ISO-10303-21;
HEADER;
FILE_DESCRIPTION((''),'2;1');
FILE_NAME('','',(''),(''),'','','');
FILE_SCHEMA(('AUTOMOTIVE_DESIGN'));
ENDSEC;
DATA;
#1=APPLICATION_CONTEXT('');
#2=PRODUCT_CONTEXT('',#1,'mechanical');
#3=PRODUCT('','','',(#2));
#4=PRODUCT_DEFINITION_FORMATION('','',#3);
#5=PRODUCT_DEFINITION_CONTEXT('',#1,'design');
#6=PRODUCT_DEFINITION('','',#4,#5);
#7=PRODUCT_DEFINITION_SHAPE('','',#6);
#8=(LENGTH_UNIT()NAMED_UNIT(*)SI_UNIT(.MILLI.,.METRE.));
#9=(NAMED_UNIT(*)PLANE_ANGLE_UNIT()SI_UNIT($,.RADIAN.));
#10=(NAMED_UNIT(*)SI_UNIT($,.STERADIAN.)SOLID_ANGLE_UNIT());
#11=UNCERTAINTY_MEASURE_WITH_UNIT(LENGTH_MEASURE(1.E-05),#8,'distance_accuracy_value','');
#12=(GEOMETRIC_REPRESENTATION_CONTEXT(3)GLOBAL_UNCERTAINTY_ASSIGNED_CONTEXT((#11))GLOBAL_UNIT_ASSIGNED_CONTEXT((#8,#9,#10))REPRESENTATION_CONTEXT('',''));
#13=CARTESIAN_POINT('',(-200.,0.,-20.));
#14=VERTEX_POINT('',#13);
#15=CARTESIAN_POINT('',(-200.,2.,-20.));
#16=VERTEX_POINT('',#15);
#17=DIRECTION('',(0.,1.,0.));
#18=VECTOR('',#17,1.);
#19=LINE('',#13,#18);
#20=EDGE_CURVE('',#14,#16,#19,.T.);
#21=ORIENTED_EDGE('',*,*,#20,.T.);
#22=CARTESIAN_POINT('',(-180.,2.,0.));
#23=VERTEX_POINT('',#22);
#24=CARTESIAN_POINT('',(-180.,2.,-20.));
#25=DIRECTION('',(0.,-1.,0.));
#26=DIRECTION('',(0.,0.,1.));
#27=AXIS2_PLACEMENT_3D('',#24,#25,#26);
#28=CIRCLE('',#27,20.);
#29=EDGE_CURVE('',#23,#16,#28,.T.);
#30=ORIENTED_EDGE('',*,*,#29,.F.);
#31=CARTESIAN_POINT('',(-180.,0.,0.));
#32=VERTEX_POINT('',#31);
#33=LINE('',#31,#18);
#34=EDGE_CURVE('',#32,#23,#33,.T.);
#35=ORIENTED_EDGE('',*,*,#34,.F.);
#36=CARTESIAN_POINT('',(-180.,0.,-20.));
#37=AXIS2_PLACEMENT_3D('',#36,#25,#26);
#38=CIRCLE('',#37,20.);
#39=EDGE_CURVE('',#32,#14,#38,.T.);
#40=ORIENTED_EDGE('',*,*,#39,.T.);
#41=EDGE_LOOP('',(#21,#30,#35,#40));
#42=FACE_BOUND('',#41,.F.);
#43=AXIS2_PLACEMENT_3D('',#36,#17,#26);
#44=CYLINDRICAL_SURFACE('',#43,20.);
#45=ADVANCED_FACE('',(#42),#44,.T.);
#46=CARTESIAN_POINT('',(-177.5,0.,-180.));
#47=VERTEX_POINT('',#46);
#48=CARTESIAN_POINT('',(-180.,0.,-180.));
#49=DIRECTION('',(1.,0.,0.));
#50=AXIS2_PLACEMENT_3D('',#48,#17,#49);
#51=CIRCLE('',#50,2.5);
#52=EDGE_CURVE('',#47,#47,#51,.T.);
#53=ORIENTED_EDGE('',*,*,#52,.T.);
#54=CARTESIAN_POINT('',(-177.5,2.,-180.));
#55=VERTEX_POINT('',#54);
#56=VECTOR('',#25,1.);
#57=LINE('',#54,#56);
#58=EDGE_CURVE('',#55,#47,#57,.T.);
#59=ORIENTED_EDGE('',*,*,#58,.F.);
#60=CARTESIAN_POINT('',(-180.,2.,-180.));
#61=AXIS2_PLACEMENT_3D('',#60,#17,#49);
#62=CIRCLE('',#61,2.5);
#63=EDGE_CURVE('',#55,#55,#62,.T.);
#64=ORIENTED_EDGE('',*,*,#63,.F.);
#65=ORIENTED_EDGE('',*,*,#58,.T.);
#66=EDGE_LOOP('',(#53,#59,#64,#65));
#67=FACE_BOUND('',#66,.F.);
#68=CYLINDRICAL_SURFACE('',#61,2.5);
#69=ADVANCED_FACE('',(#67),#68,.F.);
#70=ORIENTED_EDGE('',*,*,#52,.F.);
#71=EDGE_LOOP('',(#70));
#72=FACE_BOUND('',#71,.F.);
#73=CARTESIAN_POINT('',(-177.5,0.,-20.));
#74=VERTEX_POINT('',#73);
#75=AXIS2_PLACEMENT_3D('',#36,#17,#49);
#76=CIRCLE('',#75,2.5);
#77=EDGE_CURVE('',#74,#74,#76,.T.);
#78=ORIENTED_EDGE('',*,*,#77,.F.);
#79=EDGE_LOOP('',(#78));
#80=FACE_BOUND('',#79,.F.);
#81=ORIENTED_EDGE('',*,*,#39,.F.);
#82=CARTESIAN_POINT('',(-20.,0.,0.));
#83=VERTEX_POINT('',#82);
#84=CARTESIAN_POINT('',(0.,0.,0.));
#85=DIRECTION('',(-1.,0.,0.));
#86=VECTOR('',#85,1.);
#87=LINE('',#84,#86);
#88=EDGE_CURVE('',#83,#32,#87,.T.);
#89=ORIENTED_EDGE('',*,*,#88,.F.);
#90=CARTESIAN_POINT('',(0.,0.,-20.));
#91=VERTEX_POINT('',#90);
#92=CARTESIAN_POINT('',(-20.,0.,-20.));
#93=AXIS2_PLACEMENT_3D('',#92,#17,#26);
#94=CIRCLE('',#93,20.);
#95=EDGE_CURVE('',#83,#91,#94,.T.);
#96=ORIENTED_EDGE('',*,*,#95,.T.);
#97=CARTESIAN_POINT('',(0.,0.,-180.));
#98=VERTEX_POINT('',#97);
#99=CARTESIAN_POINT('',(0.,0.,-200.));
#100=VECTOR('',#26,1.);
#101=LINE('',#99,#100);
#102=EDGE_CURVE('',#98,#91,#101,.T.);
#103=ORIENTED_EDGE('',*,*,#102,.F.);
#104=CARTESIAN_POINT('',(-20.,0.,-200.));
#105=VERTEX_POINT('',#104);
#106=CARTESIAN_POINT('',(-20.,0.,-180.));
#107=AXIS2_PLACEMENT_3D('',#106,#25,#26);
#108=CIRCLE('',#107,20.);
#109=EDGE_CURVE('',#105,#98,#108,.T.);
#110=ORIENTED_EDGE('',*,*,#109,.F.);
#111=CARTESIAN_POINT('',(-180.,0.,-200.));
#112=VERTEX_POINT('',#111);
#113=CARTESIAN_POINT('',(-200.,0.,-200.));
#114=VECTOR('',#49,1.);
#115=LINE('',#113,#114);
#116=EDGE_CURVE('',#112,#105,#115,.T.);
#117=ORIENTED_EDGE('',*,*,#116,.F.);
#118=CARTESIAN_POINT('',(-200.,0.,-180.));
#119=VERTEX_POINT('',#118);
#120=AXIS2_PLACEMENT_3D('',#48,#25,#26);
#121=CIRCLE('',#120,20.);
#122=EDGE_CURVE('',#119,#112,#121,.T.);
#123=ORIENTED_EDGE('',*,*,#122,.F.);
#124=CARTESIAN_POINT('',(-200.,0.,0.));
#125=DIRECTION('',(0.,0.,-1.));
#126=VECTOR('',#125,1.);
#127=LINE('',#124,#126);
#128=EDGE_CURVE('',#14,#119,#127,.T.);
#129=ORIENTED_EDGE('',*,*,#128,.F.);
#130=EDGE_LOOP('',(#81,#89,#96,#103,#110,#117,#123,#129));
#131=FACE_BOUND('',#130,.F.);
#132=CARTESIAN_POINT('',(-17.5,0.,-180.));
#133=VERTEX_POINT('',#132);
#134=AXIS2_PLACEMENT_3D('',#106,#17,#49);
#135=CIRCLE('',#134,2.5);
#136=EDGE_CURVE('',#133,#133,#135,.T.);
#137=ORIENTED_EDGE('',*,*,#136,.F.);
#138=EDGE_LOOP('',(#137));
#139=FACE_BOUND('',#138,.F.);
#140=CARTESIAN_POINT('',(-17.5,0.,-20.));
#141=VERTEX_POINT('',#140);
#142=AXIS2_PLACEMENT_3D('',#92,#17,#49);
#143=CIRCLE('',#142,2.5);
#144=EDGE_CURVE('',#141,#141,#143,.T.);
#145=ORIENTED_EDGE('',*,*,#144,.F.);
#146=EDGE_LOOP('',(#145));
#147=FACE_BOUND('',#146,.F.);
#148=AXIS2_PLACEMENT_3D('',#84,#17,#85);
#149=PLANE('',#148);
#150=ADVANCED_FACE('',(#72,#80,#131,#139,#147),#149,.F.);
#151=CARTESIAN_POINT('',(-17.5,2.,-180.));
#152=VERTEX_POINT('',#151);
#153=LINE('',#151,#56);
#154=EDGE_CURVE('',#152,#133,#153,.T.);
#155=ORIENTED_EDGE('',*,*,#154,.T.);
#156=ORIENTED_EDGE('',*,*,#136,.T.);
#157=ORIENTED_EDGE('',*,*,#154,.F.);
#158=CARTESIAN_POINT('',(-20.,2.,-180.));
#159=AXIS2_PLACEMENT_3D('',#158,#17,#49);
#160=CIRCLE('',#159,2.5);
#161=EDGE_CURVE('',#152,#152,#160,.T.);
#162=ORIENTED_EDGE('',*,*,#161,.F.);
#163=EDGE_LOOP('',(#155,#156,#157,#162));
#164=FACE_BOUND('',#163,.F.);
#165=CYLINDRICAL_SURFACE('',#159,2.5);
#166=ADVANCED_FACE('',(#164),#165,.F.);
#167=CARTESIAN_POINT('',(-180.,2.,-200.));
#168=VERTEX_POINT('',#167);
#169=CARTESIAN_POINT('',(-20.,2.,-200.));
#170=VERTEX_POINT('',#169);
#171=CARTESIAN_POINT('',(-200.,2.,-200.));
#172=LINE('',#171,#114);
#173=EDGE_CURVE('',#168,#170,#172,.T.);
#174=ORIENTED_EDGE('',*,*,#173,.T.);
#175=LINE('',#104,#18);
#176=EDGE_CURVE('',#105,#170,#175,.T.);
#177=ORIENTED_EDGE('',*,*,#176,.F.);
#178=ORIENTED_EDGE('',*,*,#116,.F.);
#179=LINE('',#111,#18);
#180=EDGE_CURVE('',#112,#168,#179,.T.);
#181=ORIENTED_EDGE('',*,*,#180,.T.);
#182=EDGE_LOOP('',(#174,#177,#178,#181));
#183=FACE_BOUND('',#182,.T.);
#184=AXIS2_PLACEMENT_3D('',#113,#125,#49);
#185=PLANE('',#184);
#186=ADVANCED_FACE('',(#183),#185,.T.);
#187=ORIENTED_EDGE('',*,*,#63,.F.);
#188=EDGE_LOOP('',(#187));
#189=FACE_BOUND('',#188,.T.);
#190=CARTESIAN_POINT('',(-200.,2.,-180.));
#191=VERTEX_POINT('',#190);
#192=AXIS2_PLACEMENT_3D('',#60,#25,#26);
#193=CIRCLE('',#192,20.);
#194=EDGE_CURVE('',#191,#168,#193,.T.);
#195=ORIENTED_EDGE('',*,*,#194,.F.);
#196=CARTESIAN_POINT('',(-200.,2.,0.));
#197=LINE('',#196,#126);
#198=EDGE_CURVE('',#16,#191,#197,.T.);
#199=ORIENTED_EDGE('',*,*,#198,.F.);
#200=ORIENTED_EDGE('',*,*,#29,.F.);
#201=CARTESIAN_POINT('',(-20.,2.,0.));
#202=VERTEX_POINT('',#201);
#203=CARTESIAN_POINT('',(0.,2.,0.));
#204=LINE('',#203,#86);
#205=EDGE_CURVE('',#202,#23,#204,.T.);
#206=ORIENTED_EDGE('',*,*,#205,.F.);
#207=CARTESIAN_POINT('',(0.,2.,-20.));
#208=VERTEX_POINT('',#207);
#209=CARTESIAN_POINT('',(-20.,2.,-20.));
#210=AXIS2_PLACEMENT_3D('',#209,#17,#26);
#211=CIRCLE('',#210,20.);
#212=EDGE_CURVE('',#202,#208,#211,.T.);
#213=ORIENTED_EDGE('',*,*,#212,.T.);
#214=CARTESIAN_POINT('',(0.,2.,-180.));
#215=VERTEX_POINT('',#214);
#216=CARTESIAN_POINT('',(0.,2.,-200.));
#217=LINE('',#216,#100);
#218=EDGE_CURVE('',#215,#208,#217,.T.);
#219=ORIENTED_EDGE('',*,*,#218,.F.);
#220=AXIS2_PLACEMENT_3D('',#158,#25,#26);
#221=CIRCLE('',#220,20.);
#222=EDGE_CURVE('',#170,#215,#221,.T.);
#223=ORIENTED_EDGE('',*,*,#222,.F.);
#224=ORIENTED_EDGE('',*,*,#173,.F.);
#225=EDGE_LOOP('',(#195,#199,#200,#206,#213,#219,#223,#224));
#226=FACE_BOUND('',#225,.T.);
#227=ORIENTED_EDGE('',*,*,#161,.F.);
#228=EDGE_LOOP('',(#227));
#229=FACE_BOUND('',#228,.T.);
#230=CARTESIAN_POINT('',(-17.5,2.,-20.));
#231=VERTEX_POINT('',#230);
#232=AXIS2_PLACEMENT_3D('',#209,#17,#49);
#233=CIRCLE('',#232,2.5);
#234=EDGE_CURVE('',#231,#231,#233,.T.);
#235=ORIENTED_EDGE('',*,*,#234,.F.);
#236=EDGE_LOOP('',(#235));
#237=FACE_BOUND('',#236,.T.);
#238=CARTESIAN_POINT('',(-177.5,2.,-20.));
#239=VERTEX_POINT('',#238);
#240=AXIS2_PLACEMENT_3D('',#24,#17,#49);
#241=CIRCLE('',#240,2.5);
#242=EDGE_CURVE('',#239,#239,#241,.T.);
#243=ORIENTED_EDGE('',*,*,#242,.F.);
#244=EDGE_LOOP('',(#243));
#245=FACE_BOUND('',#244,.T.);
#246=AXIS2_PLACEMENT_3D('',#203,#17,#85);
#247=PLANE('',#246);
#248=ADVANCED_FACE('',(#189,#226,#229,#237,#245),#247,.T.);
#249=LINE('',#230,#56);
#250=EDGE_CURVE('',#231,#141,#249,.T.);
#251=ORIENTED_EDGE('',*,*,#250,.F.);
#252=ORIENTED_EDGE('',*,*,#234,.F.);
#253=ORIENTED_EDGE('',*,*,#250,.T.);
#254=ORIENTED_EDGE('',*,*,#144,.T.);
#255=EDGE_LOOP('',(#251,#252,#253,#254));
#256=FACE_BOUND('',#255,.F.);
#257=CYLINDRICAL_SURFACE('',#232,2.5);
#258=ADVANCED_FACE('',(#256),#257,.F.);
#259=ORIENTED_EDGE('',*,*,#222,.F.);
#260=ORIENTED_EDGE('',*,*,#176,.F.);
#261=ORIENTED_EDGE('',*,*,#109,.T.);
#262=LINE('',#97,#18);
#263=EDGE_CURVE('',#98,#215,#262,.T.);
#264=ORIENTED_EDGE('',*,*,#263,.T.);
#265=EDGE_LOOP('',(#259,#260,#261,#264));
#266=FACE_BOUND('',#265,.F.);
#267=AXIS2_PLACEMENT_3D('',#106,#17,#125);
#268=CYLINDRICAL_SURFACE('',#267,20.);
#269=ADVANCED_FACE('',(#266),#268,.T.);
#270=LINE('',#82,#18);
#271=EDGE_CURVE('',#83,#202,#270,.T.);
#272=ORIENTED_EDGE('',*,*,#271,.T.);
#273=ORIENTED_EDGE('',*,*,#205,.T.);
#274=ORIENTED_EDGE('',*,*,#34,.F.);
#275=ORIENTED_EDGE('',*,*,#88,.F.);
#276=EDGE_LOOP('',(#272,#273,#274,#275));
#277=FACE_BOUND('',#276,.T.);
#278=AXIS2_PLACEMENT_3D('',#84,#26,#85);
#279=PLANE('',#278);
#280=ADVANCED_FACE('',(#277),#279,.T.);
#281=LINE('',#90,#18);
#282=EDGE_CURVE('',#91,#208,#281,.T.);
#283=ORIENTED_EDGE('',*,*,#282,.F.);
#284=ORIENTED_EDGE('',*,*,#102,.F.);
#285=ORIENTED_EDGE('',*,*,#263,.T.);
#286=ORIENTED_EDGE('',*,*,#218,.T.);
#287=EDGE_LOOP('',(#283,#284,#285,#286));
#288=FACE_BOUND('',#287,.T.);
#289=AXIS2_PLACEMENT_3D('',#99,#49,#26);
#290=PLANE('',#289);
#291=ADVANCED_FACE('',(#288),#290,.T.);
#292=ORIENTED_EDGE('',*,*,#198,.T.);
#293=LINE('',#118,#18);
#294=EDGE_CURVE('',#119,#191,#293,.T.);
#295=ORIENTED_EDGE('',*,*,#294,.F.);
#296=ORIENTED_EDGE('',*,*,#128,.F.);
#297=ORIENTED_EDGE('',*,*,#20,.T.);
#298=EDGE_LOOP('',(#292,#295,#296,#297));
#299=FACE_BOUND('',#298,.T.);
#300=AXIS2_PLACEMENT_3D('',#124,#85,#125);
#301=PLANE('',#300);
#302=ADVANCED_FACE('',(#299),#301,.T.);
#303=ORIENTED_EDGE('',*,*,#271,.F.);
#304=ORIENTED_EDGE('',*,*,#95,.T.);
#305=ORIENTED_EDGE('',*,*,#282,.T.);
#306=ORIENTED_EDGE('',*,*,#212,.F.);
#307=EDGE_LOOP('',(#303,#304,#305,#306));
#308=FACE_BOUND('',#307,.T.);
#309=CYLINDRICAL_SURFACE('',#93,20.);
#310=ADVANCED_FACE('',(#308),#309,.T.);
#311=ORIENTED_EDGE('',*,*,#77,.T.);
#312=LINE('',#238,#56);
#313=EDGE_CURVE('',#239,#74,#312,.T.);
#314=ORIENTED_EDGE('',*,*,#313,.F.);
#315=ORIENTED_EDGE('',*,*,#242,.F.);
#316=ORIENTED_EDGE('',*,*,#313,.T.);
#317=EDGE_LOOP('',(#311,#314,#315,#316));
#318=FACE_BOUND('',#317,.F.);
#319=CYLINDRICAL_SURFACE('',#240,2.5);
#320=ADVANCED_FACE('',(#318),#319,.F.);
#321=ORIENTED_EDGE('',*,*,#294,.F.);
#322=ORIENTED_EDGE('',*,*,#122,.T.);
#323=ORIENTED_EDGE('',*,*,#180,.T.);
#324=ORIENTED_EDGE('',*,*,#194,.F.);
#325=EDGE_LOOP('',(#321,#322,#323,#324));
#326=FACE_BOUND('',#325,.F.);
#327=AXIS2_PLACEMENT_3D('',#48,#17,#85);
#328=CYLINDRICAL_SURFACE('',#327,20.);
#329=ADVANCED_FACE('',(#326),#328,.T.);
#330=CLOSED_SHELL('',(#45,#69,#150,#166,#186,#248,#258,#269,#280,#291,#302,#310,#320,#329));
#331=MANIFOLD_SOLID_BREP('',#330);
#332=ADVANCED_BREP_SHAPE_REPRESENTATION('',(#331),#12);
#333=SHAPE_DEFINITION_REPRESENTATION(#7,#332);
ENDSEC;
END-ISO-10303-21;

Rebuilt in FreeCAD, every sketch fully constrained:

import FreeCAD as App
import Part
import Sketcher


def edges_at(feature, points):
    """Names of the edges that pass closest to the given points."""
    edges = feature.Shape.Edges
    near = lambda p: min(range(len(edges)), key=lambda i: edges[i].distToShape(Part.Vertex(*p))[0])
    return sorted({f"Edge{near(p) + 1}" for p in points})


def add_polygon(sketch, points):
    """Adds a closed chain of lines whose ends are joined by coincident constraints."""
    first, n = sketch.GeometryCount, len(points)
    for a, b in zip(points, points[1:] + points[:1]):
        sketch.addGeometry(Part.LineSegment(App.Vector(*a, 0), App.Vector(*b, 0)), False)
    for i in range(n):
        sketch.addConstraint(Sketcher.Constraint("Coincident", first + i, 2, first + (i + 1) % n, 1))

doc = App.newDocument("Part")
body = doc.addObject("PartDesign::Body", "Body")

# Sketch on XZ plane
sketch1 = body.newObject("Sketcher::SketchObject", "Sketch")
sketch1.AttachmentSupport = (doc.getObject("XZ_Plane"), [""])
sketch1.MapMode = "FlatFace"
add_polygon(sketch1, [(-200, 0), (0, 0), (0, -200), (-200, -200)])  # lines 0-3
sketch1.addConstraint(Sketcher.Constraint("Horizontal", 0))
sketch1.addConstraint(Sketcher.Constraint("Vertical", 1))
sketch1.addConstraint(Sketcher.Constraint("Horizontal", 2))
sketch1.addConstraint(Sketcher.Constraint("Vertical", 3))
sketch1.addConstraint(Sketcher.Constraint("Coincident", 0, 2, -1, 1))
sketch1.addConstraint(Sketcher.Constraint("Equal", 2, 1))
sketch1.addConstraint(Sketcher.Constraint("DistanceX", 0, 1, 0, 2, 200.0))
pad1 = body.newObject("PartDesign::Pad", "Pad")
pad1.Profile = sketch1
pad1.Length = 2
pad1.Reversed = True
doc.recompute()

fillet = body.newObject("PartDesign::Fillet", "Fillet")
fillet.Base = (pad1, edges_at(pad1, [
    (-200, 1, 0),
    (0, 1, 0),
    (0, 1, -200),
    (-200, 1, -200),
]))
fillet.Radius = 20

# Sketch on XZ plane
sketch2 = body.newObject("Sketcher::SketchObject", "Sketch001")
sketch2.AttachmentSupport = (doc.getObject("XZ_Plane"), [""])
sketch2.MapMode = "FlatFace"
sketch2.AttachmentOffset = App.Placement(App.Vector(0, 0, -2), App.Rotation())
sketch2.addGeometry(Part.Circle(App.Vector(-20, -180, 0), App.Vector(0, 0, 1), 2.5), False)
sketch2.addGeometry(Part.Circle(App.Vector(-180, -180, 0), App.Vector(0, 0, 1), 2.5), False)
sketch2.addGeometry(Part.Circle(App.Vector(-180, -20, 0), App.Vector(0, 0, 1), 2.5), False)
sketch2.addGeometry(Part.Circle(App.Vector(-20, -20, 0), App.Vector(0, 0, 1), 2.5), False)
sketch2.addConstraint(Sketcher.Constraint("Equal", 0, 1))
sketch2.addConstraint(Sketcher.Constraint("Equal", 1, 2))
sketch2.addConstraint(Sketcher.Constraint("Equal", 2, 3))
sketch2.addConstraint(Sketcher.Constraint("Horizontal", 0, 3, 1, 3))
sketch2.addConstraint(Sketcher.Constraint("Horizontal", 2, 3, 3, 3))
sketch2.addConstraint(Sketcher.Constraint("Vertical", 1, 3, 2, 3))
sketch2.addConstraint(Sketcher.Constraint("Vertical", 0, 3, 3, 3))
sketch2.addConstraint(Sketcher.Constraint("Diameter", 0, 5.0))
sketch2.addConstraint(Sketcher.Constraint("DistanceX", 0, 3, -1, 1, 20.0))
sketch2.addConstraint(Sketcher.Constraint("DistanceY", 0, 3, -1, 1, 180.0))
sketch2.addConstraint(Sketcher.Constraint("DistanceX", 1, 3, -1, 1, 180.0))
sketch2.addConstraint(Sketcher.Constraint("DistanceY", 2, 3, -1, 1, 20.0))
pocket1 = body.newObject("PartDesign::Pocket", "Pocket")
pocket1.Profile = sketch2
pocket1.Length = 2
pocket1.Reversed = True

doc.recompute()
